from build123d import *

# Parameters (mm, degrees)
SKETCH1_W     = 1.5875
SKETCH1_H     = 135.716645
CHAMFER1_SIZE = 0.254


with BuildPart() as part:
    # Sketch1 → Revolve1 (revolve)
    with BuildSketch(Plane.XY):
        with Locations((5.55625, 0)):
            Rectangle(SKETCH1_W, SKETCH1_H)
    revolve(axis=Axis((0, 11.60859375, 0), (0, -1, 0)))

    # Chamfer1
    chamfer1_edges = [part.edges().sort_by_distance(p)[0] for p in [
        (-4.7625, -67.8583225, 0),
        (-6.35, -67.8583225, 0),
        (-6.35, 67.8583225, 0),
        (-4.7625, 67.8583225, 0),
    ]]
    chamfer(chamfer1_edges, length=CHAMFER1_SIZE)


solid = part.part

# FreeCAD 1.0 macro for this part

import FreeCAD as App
import Part
import Sketcher

V = App.Vector
Q = App.Units.Quantity


def edges_at(feature, points):
    """Names of the edges that pass closest to the given points."""
    edges = feature.Shape.Edges
    near = lambda p: min(range(len(edges)), key=lambda i: edges[i].distToShape(Part.Vertex(*p))[0])
    return sorted({f"Edge{near(p) + 1}" for p in points})


def add_polygon(sketch, points):
    """Adds a closed chain of lines whose ends are joined by coincident constraints."""
    first, n = sketch.GeometryCount, len(points)
    for a, b in zip(points, points[1:] + points[:1]):
        sketch.addGeometry(Part.LineSegment(App.Vector(*a, 0), App.Vector(*b, 0)), False)
    for i in range(n):
        sketch.addConstraint(Sketcher.Constraint("Coincident", first + i, 2, first + (i + 1) % n, 1))

doc = App.newDocument("Part")
params = doc.addObject("Spreadsheet::Sheet", "Params")
for row, (alias, value) in enumerate([
    ("sketch1_width", "0.0625 in"),
    ("revolution_angle", "360 deg"),
    ("chamfer_size", "0.01 in"),
], start=1):
    params.set(f"A{row}", alias)
    params.set(f"B{row}", "=" + value)
    params.setAlias(f"B{row}", alias)

body = doc.addObject("PartDesign::Body", "Body")

# Sketch on XY plane
sketch1 = doc.addObject("Sketcher::SketchObject", "Sketch")
body.addObject(sketch1)
sketch1.AttachmentSupport = (doc.XY_Plane, [""])
sketch1.MapMode = "FlatFace"
add_polygon(sketch1, [(4.7625, 67.858322), (4.7625, -67.858322), (6.35, -67.858322), (6.35, 67.858322)])  # lines 0-3
sketch1.addConstraint(Sketcher.Constraint("Vertical", 0))
sketch1.addConstraint(Sketcher.Constraint("Horizontal", 1))
sketch1.addConstraint(Sketcher.Constraint("Vertical", 2))
sketch1.addConstraint(Sketcher.Constraint("Horizontal", 3))
sketch1.addConstraint(Sketcher.Constraint("DistanceX", 1, 1, 1, 2, Q("0.0625 in")))
sketch1.addConstraint(Sketcher.Constraint("DistanceX", -1, 1, 1, 2, Q("0.25 in")))
sketch1.addConstraint(Sketcher.Constraint("DistanceY", 0, 2, 0, 1, 135.716645))
sketch1.addConstraint(Sketcher.Constraint("DistanceY", 0, 2, -1, 1, 67.858322))
sketch1.setExpression("Constraints[8]", "Params.sketch1_width")
revolution = doc.addObject("PartDesign::Revolution", "Revolution")
body.addObject(revolution)
revolution.Profile = sketch1
revolution.ReferenceAxis = (sketch1, ["V_Axis"])
revolution.setExpression("Angle", "Params.revolution_angle")
doc.recompute()

chamfer = doc.addObject("PartDesign::Chamfer", "Chamfer")
body.addObject(chamfer)
chamfer.Base = (revolution, edges_at(revolution, [
    (-4.763, -67.858, 0),
    (-6.35, -67.858, 0),
    (-6.35, 67.858, 0),
    (-4.763, 67.858, 0),
]))
chamfer.setExpression("Size", "Params.chamfer_size")

doc.recompute()
